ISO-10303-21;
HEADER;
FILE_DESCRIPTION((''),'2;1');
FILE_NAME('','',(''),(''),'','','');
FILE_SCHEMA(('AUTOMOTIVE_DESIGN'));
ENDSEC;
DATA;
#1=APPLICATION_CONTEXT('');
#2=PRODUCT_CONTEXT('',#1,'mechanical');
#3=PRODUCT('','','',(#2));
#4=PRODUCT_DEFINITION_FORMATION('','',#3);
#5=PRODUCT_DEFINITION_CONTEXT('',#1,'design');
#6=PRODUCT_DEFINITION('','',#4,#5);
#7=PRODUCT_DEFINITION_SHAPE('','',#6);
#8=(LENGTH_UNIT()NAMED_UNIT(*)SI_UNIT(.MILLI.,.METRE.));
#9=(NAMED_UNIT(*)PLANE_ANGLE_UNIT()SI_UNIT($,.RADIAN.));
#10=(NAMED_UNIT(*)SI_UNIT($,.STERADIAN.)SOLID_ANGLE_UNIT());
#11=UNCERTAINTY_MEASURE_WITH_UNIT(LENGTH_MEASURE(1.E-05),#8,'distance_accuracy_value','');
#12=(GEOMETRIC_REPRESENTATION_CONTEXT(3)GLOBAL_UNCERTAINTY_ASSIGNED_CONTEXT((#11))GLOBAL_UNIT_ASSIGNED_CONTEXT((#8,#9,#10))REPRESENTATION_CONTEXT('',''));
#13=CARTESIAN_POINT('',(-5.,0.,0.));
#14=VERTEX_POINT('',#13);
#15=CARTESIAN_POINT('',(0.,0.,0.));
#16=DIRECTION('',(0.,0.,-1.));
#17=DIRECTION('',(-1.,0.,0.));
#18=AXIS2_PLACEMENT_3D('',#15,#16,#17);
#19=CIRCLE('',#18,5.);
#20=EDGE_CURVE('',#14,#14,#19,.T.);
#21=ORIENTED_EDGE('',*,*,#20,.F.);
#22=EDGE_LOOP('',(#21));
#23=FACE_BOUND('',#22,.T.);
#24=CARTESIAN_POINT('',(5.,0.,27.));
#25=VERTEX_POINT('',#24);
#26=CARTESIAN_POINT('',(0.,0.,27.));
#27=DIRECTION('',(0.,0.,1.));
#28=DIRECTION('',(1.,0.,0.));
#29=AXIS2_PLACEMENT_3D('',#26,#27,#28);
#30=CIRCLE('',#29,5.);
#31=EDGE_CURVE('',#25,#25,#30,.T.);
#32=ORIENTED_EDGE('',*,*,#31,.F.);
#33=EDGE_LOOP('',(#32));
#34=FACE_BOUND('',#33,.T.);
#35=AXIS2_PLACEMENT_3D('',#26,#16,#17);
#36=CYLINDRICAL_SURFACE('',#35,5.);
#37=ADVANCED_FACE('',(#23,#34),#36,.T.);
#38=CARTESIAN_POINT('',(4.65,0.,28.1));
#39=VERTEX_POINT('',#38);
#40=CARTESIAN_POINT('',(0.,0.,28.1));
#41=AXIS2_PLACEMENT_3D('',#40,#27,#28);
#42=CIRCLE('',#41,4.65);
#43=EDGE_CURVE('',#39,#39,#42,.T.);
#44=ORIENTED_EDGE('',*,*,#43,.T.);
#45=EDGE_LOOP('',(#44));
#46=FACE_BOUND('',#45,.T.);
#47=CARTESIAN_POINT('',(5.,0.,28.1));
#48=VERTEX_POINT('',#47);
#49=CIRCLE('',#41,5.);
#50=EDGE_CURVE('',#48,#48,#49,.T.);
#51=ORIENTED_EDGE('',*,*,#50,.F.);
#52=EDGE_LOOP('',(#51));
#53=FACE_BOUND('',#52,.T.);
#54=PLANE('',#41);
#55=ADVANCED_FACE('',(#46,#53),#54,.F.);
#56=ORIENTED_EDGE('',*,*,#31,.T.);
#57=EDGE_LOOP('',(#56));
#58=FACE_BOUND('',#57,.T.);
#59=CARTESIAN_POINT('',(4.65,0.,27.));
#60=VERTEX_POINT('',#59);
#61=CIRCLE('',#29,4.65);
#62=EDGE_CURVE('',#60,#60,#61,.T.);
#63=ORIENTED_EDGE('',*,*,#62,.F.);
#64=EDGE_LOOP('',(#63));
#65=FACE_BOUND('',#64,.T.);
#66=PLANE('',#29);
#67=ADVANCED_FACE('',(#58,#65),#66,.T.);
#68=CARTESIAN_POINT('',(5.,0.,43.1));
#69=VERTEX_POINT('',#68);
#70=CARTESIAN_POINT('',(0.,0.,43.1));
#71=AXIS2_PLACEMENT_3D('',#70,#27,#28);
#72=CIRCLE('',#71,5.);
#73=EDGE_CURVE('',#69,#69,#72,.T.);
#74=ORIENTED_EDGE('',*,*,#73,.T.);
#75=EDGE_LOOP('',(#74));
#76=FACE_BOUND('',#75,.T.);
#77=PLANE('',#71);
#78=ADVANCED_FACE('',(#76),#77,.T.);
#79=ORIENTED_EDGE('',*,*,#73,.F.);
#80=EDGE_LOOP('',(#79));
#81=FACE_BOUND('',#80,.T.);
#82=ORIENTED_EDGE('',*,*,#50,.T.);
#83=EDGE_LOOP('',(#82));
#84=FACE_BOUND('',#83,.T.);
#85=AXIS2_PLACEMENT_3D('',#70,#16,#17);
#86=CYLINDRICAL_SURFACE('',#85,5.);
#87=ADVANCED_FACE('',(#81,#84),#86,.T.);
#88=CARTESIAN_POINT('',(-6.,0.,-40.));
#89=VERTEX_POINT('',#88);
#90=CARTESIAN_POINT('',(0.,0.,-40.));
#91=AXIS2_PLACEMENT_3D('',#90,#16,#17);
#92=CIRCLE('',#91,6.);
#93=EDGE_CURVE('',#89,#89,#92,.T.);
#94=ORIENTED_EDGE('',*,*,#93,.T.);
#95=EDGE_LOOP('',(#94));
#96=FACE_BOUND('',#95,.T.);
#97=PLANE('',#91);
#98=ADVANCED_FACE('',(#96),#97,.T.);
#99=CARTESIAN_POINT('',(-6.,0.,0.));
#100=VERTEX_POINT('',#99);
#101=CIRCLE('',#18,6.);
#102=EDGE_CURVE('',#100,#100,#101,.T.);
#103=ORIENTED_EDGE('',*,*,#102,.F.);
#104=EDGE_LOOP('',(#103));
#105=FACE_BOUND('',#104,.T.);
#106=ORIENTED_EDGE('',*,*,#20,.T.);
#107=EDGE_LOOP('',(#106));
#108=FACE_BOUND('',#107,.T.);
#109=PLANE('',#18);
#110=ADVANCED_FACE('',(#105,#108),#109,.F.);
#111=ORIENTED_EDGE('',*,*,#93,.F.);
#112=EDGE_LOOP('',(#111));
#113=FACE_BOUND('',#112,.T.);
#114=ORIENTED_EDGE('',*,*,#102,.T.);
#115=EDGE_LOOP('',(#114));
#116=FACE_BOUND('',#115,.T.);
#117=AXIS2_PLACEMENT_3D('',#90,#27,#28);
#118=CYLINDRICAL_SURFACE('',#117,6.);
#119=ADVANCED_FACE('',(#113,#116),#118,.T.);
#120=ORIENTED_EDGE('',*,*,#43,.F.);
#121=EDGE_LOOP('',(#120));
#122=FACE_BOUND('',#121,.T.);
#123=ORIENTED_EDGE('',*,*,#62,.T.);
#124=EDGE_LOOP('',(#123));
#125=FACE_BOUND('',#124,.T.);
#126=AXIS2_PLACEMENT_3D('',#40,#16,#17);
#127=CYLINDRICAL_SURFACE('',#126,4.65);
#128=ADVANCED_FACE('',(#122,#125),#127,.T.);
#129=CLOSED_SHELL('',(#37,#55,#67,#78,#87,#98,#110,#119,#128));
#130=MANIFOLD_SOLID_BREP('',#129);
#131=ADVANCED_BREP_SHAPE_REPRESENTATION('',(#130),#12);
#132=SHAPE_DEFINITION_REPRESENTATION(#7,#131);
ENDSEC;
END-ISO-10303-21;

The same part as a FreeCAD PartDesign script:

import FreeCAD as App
import Part
import Sketcher
from FreeCAD import Vector

doc = App.newDocument("Part")
params = doc.addObject("Spreadsheet::Sheet", "Params")
for row, (alias, value) in enumerate([
    ("sketch1_diameter", "10 mm"),
    ("pad1_length", "27 mm"),
    ("sketch2_diameter", "12 mm"),
    ("pad2_length", "40 mm"),
    ("sketch3_diameter", "9.3 mm"),
    ("pad3_length", "1.1 mm"),
    ("sketch4_diameter", "10 mm"),
    ("pad4_length", "15 mm"),
], start=1):
    params.set(f"A{row}", alias)
    params.set(f"B{row}", "=" + value)
    params.setAlias(f"B{row}", alias)

body = doc.addObject("PartDesign::Body", "Body")

# Sketch on XY plane
sketch1 = body.newObject("Sketcher::SketchObject", "Sketch")
sketch1.AttachmentSupport = (doc.getObject("XY_Plane"), [""])
sketch1.MapMode = "FlatFace"
sketch1.addGeometry(Part.Circle(Vector(0, 0, 0), Vector(0, 0, 1), 5), False)
sketch1.addConstraint([
    Sketcher.Constraint("Coincident", 0, 3, -1, 1),
    Sketcher.Constraint("Diameter", 0, 10.0),
])
sketch1.setExpression("Constraints[1]", "Params.sketch1_diameter")
pad1 = body.newObject("PartDesign::Pad", "Pad")
pad1.Profile = sketch1
pad1.setExpression("Length", "Params.pad1_length")

# Sketch on XY plane
sketch2 = body.newObject("Sketcher::SketchObject", "Sketch001")
sketch2.AttachmentSupport = (doc.getObject("XY_Plane"), [""])
sketch2.MapMode = "FlatFace"
sketch2.addGeometry(Part.Circle(Vector(0, 0, 0), Vector(0, 0, 1), 6), False)
sketch2.addConstraint([
    Sketcher.Constraint("Coincident", 0, 3, -1, 1),
    Sketcher.Constraint("Diameter", 0, 12.0),
])
sketch2.setExpression("Constraints[1]", "Params.sketch2_diameter")
pad2 = body.newObject("PartDesign::Pad", "Pad001")
pad2.Profile = sketch2
pad2.setExpression("Length", "Params.pad2_length")
pad2.Reversed = True

# Sketch on XY plane
sketch3 = body.newObject("Sketcher::SketchObject", "Sketch002")
sketch3.AttachmentSupport = (doc.getObject("XY_Plane"), [""])
sketch3.MapMode = "FlatFace"
sketch3.AttachmentOffset = App.Placement(Vector(0, 0, 27), App.Rotation())
sketch3.addGeometry(Part.Circle(Vector(0, 0, 0), Vector(0, 0, 1), 4.7), False)
sketch3.addConstraint([
    Sketcher.Constraint("Coincident", 0, 3, -1, 1),
    Sketcher.Constraint("Diameter", 0, 9.3),
])
sketch3.setExpression("Constraints[1]", "Params.sketch3_diameter")
pad3 = body.newObject("PartDesign::Pad", "Pad002")
pad3.Profile = sketch3
pad3.setExpression("Length", "Params.pad3_length")

# Sketch on XY plane
sketch4 = body.newObject("Sketcher::SketchObject", "Sketch003")
sketch4.AttachmentSupport = (doc.getObject("XY_Plane"), [""])
sketch4.MapMode = "FlatFace"
sketch4.AttachmentOffset = App.Placement(Vector(0, 0, 28.1), App.Rotation())
sketch4.addGeometry(Part.Circle(Vector(0, 0, 0), Vector(0, 0, 1), 5), False)
sketch4.addConstraint([
    Sketcher.Constraint("Coincident", 0, 3, -1, 1),
    Sketcher.Constraint("Diameter", 0, 10.0),
])
sketch4.setExpression("Constraints[1]", "Params.sketch4_diameter")
pad4 = body.newObject("PartDesign::Pad", "Pad003")
pad4.Profile = sketch4
pad4.setExpression("Length", "Params.pad4_length")

doc.recompute()
